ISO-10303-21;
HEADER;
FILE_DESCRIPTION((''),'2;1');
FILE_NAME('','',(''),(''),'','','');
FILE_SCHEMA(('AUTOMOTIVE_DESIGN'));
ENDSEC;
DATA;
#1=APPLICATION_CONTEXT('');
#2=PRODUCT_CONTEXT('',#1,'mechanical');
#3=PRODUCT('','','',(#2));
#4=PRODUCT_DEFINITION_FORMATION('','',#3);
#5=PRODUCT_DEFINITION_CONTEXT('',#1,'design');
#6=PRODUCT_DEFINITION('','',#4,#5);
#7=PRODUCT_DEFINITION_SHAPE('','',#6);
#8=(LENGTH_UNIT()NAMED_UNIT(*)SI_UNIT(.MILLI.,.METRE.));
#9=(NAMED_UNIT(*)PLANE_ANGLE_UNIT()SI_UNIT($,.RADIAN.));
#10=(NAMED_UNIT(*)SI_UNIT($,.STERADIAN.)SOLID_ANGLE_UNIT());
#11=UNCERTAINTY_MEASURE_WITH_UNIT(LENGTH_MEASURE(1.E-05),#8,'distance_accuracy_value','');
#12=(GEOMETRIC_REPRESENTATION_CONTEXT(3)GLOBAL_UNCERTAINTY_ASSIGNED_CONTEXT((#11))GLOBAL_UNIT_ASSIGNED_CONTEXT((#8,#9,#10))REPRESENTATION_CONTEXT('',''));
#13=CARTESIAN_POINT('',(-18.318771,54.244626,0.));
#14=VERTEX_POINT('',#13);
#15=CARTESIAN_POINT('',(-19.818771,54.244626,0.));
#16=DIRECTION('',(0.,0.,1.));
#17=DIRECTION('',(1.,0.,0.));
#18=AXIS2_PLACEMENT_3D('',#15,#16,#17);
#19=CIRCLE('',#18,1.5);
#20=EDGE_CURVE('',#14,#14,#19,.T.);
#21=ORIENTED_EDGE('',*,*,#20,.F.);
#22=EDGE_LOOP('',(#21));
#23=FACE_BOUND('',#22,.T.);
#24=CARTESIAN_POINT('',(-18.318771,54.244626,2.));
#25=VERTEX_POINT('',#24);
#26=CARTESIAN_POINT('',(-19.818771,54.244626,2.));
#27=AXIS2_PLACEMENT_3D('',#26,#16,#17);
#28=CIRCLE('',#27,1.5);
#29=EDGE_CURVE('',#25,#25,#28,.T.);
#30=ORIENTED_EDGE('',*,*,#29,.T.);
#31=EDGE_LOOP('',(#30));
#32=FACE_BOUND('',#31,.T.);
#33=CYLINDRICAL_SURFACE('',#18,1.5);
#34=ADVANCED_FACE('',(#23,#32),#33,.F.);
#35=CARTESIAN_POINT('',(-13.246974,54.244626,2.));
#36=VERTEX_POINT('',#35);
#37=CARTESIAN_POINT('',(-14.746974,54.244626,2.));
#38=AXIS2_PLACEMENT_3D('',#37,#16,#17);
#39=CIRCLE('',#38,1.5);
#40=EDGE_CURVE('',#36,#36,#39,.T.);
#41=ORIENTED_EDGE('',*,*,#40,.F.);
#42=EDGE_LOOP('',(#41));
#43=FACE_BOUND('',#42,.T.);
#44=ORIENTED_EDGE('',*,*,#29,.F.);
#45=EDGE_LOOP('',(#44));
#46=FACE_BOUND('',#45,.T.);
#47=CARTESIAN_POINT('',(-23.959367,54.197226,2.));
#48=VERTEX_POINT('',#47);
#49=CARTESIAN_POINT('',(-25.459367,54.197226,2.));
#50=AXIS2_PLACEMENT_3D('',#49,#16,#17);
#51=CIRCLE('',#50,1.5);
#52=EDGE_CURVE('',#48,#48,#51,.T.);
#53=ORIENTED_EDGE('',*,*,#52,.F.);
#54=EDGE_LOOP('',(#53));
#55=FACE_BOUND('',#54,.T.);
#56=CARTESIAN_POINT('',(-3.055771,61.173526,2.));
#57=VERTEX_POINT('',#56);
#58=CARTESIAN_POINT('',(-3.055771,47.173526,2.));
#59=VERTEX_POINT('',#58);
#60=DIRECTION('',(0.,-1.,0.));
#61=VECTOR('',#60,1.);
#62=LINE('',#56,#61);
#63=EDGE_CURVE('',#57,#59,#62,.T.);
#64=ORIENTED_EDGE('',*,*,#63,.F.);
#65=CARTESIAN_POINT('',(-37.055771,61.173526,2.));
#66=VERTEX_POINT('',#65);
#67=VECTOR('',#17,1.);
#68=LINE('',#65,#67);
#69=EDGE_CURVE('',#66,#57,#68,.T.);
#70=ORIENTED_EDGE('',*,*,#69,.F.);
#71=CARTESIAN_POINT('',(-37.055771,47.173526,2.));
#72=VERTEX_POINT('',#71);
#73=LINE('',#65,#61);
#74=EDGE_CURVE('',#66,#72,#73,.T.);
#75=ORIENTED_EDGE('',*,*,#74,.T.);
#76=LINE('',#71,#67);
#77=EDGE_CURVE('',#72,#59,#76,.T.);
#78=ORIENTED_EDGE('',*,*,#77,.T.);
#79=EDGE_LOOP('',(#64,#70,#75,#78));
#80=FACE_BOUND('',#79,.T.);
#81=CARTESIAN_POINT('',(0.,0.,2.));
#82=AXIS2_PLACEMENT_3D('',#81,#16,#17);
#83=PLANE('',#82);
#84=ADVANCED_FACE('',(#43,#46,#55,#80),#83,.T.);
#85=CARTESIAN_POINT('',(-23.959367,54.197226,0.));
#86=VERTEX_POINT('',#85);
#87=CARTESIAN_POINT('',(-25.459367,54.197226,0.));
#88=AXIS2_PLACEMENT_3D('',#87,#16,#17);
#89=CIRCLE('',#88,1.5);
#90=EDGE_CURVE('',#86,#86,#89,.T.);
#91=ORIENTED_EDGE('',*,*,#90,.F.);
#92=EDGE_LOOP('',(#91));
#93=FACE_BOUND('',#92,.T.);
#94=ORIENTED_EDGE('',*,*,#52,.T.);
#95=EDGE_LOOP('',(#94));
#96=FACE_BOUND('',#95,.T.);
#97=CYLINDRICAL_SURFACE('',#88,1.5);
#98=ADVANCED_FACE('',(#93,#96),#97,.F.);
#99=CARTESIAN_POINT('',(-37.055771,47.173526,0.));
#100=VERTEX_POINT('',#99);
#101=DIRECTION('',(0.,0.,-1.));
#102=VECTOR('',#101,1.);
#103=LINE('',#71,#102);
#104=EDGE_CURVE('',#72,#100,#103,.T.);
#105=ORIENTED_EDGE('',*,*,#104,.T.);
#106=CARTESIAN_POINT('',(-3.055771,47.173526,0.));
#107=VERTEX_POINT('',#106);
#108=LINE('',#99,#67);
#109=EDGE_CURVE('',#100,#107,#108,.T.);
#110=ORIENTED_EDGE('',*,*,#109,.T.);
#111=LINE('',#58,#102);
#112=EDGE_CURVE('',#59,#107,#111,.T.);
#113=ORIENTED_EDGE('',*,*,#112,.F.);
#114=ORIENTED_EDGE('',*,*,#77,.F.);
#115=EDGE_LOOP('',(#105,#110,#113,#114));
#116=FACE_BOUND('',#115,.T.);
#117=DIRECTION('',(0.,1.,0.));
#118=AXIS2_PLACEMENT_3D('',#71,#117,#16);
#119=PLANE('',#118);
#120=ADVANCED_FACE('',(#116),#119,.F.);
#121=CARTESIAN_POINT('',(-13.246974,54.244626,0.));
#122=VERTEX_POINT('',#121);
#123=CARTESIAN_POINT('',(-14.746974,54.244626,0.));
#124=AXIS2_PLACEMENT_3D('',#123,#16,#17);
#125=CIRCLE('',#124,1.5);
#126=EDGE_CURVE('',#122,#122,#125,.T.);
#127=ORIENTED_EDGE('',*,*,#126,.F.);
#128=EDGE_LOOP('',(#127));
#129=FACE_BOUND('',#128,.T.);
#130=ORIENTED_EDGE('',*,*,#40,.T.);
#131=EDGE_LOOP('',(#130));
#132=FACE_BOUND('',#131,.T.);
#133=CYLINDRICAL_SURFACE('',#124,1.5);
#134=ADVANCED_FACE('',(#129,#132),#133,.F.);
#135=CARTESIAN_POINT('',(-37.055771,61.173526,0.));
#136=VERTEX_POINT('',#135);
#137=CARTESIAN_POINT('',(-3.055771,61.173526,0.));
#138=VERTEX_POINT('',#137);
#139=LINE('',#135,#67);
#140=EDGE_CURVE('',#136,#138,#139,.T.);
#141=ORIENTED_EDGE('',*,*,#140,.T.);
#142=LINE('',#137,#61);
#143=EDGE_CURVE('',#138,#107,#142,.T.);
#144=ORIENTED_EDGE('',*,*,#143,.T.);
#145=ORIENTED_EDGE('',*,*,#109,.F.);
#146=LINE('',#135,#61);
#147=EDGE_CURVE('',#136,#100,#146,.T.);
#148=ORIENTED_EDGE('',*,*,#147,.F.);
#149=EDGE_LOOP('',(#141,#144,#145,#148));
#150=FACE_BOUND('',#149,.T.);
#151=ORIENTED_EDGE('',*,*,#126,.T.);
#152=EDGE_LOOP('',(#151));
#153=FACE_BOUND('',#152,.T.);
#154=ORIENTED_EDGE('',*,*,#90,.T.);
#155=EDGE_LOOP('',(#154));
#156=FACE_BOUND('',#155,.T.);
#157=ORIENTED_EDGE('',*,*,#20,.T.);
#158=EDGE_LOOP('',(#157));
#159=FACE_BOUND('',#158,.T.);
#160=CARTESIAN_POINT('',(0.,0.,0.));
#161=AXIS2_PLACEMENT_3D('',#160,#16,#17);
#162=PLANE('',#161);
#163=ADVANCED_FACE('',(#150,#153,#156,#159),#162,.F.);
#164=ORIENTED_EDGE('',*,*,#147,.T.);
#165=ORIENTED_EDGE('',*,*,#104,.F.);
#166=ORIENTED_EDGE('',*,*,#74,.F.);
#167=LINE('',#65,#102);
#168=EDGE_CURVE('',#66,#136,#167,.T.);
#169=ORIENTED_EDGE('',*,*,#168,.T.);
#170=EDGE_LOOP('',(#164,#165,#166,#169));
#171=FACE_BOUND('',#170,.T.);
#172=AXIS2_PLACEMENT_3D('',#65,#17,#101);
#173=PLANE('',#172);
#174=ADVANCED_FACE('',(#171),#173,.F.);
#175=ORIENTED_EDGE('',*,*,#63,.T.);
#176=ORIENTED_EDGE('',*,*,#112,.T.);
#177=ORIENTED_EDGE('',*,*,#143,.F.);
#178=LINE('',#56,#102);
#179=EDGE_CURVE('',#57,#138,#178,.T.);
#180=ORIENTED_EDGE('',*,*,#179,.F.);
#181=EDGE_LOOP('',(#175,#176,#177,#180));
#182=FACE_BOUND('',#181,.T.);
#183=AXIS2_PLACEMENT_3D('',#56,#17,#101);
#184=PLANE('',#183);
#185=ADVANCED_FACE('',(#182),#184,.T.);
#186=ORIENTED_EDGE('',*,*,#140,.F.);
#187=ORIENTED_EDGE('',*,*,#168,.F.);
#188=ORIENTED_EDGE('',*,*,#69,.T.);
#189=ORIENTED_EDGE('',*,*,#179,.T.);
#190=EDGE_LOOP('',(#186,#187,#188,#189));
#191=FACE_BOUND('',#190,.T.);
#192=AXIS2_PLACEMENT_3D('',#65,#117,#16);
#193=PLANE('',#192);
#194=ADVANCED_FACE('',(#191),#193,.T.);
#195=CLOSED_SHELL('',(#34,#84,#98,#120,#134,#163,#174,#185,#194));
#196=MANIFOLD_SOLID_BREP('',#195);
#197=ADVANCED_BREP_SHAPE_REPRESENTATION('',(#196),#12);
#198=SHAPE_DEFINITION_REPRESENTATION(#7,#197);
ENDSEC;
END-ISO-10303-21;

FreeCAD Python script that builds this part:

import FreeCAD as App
import Part
import Sketcher

V = App.Vector


def add_polygon(sketch, points):
    """Adds a closed chain of lines whose ends are joined by coincident constraints."""
    first, n = sketch.GeometryCount, len(points)
    for a, b in zip(points, points[1:] + points[:1]):
        sketch.addGeometry(Part.LineSegment(App.Vector(*a, 0), App.Vector(*b, 0)), False)
    for i in range(n):
        sketch.addConstraint(Sketcher.Constraint("Coincident", first + i, 2, first + (i + 1) % n, 1))

doc = App.newDocument("Part")
body = doc.addObject("PartDesign::Body", "Body")

sketch1 = doc.addObject("Sketcher::SketchObject", "Sketch")
body.addObject(sketch1)
sketch1.AttachmentSupport = (doc.XY_Plane, [""])
sketch1.MapMode = "FlatFace"
add_polygon(sketch1, [(-37, 61), (-37, 47), (-3, 47), (-3, 61)])
sketch1.addConstraint(Sketcher.Constraint("Vertical", 0))
sketch1.addConstraint(Sketcher.Constraint("Horizontal", 1))
sketch1.addConstraint(Sketcher.Constraint("Vertical", 2))
sketch1.addConstraint(Sketcher.Constraint("Horizontal", 3))
sketch1.addConstraint(Sketcher.Constraint("DistanceX", 1, 1, 1, 2, 34.0))
sketch1.addConstraint(Sketcher.Constraint("DistanceY", 0, 2, 0, 1, 14.0))
sketch1.addConstraint(Sketcher.Constraint("DistanceX", 0, 2, -1, 1, 37.055771))
sketch1.addConstraint(Sketcher.Constraint("DistanceY", -1, 1, 0, 2, 47.173526))
pad1 = doc.addObject("PartDesign::Pad", "Pad")
body.addObject(pad1)
pad1.Profile = sketch1
pad1.Length = 2

sketch2 = doc.addObject("Sketcher::SketchObject", "Sketch001")
body.addObject(sketch2)
sketch2.AttachmentSupport = (doc.XY_Plane, [""])
sketch2.MapMode = "FlatFace"
sketch2.AttachmentOffset = App.Placement(V(0, 0, 2), App.Rotation())
sketch2.addGeometry(Part.Circle(V(-25.5, 54.2, 0), V(0, 0, 1), 1.5), False)
sketch2.addConstraint(Sketcher.Constraint("Diameter", 0, 3.0))
sketch2.addConstraint(Sketcher.Constraint("DistanceX", 0, 3, -1, 1, 25.459367))
sketch2.addConstraint(Sketcher.Constraint("DistanceY", -1, 1, 0, 3, 54.197226))
pocket1 = doc.addObject("PartDesign::Pocket", "Pocket")
body.addObject(pocket1)
pocket1.Profile = sketch2
pocket1.Length = 2

sketch3 = doc.addObject("Sketcher::SketchObject", "Sketch002")
body.addObject(sketch3)
sketch3.AttachmentSupport = (doc.XY_Plane, [""])
sketch3.MapMode = "FlatFace"
sketch3.AttachmentOffset = App.Placement(V(0, 0, 2), App.Rotation())
sketch3.addGeometry(Part.Circle(V(-19.8, 54.2, 0), V(0, 0, 1), 1.5), False)
sketch3.addGeometry(Part.Circle(V(-14.7, 54.2, 0), V(0, 0, 1), 1.5), False)
sketch3.addConstraint(Sketcher.Constraint("Equal", 0, 1))
sketch3.addConstraint(Sketcher.Constraint("Horizontal", 0, 3, 1, 3))
sketch3.addConstraint(Sketcher.Constraint("Diameter", 0, 3.0))
sketch3.addConstraint(Sketcher.Constraint("DistanceX", 0, 3, -1, 1, 19.818771))
sketch3.addConstraint(Sketcher.Constraint("DistanceY", -1, 1, 0, 3, 54.244626))
sketch3.addConstraint(Sketcher.Constraint("DistanceX", 1, 3, -1, 1, 14.746974))
pocket2 = doc.addObject("PartDesign::Pocket", "Pocket001")
body.addObject(pocket2)
pocket2.Profile = sketch3
pocket2.Length = 2

doc.recompute()
